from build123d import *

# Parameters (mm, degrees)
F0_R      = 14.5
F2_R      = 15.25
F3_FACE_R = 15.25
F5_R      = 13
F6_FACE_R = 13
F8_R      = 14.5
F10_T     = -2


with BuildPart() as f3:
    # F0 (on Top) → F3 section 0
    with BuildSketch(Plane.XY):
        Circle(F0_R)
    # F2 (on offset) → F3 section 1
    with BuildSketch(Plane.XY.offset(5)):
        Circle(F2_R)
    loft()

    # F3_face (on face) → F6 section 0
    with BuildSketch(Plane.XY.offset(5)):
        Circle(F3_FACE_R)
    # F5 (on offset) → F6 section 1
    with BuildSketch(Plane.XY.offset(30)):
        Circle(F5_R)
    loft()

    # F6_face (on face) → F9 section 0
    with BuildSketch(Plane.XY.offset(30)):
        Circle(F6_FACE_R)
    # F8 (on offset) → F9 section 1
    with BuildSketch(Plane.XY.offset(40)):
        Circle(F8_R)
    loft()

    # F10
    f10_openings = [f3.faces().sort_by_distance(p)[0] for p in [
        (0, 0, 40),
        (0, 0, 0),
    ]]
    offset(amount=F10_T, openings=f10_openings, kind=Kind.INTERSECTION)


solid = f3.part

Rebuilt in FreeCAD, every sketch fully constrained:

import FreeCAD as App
import Part
import Sketcher

V = App.Vector


def faces_at(feature, points):
    """Names of the faces that lie closest to the given points."""
    faces = feature.Shape.Faces
    near = lambda p: min(range(len(faces)), key=lambda i: faces[i].distToShape(Part.Vertex(*p))[0])
    return sorted({f"Face{near(p) + 1}" for p in points})

doc = App.newDocument("Part")
body = doc.addObject("PartDesign::Body", "Body")

sketch1 = body.newObject("Sketcher::SketchObject", "Sketch")
sketch1.AttachmentSupport = (doc.getObject("XY_Plane"), [""])
sketch1.MapMode = "FlatFace"
sketch1.addGeometry(Part.Circle(V(0, 0, 0), V(0, 0, 1), 14), False)
sketch1.addConstraint([
    Sketcher.Constraint("Coincident", 0, 3, -1, 1),
    Sketcher.Constraint("Diameter", 0, 29.0),
])

sketch2 = body.newObject("Sketcher::SketchObject", "Sketch001")
sketch2.AttachmentSupport = (doc.getObject("XY_Plane"), [""])
sketch2.MapMode = "FlatFace"
sketch2.AttachmentOffset = App.Placement(V(0, 0, 5), App.Rotation())
sketch2.addGeometry(Part.Circle(V(0, 0, 0), V(0, 0, 1), 15), False)
sketch2.addConstraint([
    Sketcher.Constraint("Coincident", 0, 3, -1, 1),
    Sketcher.Constraint("Diameter", 0, 30.5),
])

additiveloft = body.newObject("PartDesign::AdditiveLoft", "AdditiveLoft")
additiveloft.Profile = sketch1
additiveloft.Sections = [sketch2]

sketch3 = body.newObject("Sketcher::SketchObject", "Sketch002")
sketch3.AttachmentSupport = (doc.getObject("XY_Plane"), [""])
sketch3.MapMode = "FlatFace"
sketch3.AttachmentOffset = App.Placement(V(0, 0, 5), App.Rotation())
sketch3.addGeometry(Part.Circle(V(0, 0, 0), V(0, 0, 1), 15), False)
sketch3.addConstraint([
    Sketcher.Constraint("Coincident", 0, 3, -1, 1),
    Sketcher.Constraint("Diameter", 0, 30.5),
])

sketch4 = body.newObject("Sketcher::SketchObject", "Sketch003")
sketch4.AttachmentSupport = (doc.getObject("XY_Plane"), [""])
sketch4.MapMode = "FlatFace"
sketch4.AttachmentOffset = App.Placement(V(0, 0, 30), App.Rotation())
sketch4.addGeometry(Part.Circle(V(0, 0, 0), V(0, 0, 1), 13), False)
sketch4.addConstraint([
    Sketcher.Constraint("Coincident", 0, 3, -1, 1),
    Sketcher.Constraint("Diameter", 0, 26.0),
])

additiveloft2 = body.newObject("PartDesign::AdditiveLoft", "AdditiveLoft001")
additiveloft2.Profile = sketch3
additiveloft2.Sections = [sketch4]

sketch5 = body.newObject("Sketcher::SketchObject", "Sketch004")
sketch5.AttachmentSupport = (doc.getObject("XY_Plane"), [""])
sketch5.MapMode = "FlatFace"
sketch5.AttachmentOffset = App.Placement(V(0, 0, 30), App.Rotation())
sketch5.addGeometry(Part.Circle(V(0, 0, 0), V(0, 0, 1), 13), False)
sketch5.addConstraint([
    Sketcher.Constraint("Coincident", 0, 3, -1, 1),
    Sketcher.Constraint("Diameter", 0, 26.0),
])

sketch6 = body.newObject("Sketcher::SketchObject", "Sketch005")
sketch6.AttachmentSupport = (doc.getObject("XY_Plane"), [""])
sketch6.MapMode = "FlatFace"
sketch6.AttachmentOffset = App.Placement(V(0, 0, 40), App.Rotation())
sketch6.addGeometry(Part.Circle(V(0, 0, 0), V(0, 0, 1), 14), False)
sketch6.addConstraint([
    Sketcher.Constraint("Coincident", 0, 3, -1, 1),
    Sketcher.Constraint("Diameter", 0, 29.0),
])

additiveloft3 = body.newObject("PartDesign::AdditiveLoft", "AdditiveLoft002")
additiveloft3.Profile = sketch5
additiveloft3.Sections = [sketch6]
doc.recompute()

thickness = body.newObject("PartDesign::Thickness", "Thickness")
thickness.Base = (additiveloft3, faces_at(additiveloft3, [(0, 0, 40), (0, 0, 0)]))
thickness.Value = 2
thickness.Reversed = True
thickness.Join = "Intersection"

doc.recompute()
